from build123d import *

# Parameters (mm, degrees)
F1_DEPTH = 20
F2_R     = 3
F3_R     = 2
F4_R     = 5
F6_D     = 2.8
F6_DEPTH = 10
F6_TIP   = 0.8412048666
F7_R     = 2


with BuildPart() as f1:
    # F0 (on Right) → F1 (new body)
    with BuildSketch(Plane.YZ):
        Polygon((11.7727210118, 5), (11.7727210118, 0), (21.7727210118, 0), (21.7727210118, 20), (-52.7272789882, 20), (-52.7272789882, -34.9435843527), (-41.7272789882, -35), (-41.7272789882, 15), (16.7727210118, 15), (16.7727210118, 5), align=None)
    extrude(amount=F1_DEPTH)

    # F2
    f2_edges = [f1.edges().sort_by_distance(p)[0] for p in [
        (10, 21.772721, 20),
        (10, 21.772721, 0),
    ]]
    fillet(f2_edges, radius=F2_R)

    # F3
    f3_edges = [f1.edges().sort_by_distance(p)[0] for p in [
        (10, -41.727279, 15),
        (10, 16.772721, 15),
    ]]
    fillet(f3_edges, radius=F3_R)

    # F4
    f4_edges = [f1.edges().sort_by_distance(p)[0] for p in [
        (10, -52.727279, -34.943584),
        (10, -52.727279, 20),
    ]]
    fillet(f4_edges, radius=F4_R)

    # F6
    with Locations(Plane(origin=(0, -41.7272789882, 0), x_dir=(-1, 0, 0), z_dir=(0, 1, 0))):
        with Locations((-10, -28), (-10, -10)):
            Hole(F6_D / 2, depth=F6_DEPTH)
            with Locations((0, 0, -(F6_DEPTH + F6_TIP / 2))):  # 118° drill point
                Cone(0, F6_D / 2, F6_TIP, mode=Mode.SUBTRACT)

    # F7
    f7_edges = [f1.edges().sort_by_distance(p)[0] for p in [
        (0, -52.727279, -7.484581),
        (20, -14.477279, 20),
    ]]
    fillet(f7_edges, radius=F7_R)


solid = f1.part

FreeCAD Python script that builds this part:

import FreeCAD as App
import Part
import Sketcher
from FreeCAD import Vector


def edges_at(feature, points):
    """Names of the edges that pass closest to the given points."""
    edges = feature.Shape.Edges
    near = lambda p: min(range(len(edges)), key=lambda i: edges[i].distToShape(Part.Vertex(*p))[0])
    return sorted({f"Edge{near(p) + 1}" for p in points})

doc = App.newDocument("Part")
body = doc.addObject("PartDesign::Body", "Body")

# Sketch on YZ plane
sketch1 = body.newObject("Sketcher::SketchObject", "Sketch")
sketch1.AttachmentSupport = (doc.getObject("YZ_Plane"), [""])
sketch1.MapMode = "FlatFace"
sketch1.addGeometry(Part.LineSegment(Vector(12, 5, 0), Vector(12, 0, 0)), False)
sketch1.addGeometry(Part.LineSegment(Vector(12, 0, 0), Vector(22, 0, 0)), False)
sketch1.addGeometry(Part.LineSegment(Vector(22, 0, 0), Vector(22, 20, 0)), False)
sketch1.addGeometry(Part.LineSegment(Vector(22, 20, 0), Vector(-53, 20, 0)), False)
sketch1.addGeometry(Part.LineSegment(Vector(-53, 20, 0), Vector(-53, -35, 0)), False)
sketch1.addGeometry(Part.LineSegment(Vector(-53, -35, 0), Vector(-42, -35, 0)), False)
sketch1.addGeometry(Part.LineSegment(Vector(-42, -35, 0), Vector(-42, 15, 0)), False)
sketch1.addGeometry(Part.LineSegment(Vector(-42, 15, 0), Vector(17, 15, 0)), False)
sketch1.addGeometry(Part.LineSegment(Vector(17, 15, 0), Vector(17, 5, 0)), False)
sketch1.addGeometry(Part.LineSegment(Vector(17, 5, 0), Vector(12, 5, 0)), False)
sketch1.addConstraint(Sketcher.Constraint("Coincident", 0, 2, 1, 1))
sketch1.addConstraint(Sketcher.Constraint("Coincident", 1, 2, 2, 1))
sketch1.addConstraint(Sketcher.Constraint("Coincident", 2, 2, 3, 1))
sketch1.addConstraint(Sketcher.Constraint("Coincident", 3, 2, 4, 1))
sketch1.addConstraint(Sketcher.Constraint("Coincident", 4, 2, 5, 1))
sketch1.addConstraint(Sketcher.Constraint("Coincident", 5, 2, 6, 1))
sketch1.addConstraint(Sketcher.Constraint("Coincident", 6, 2, 7, 1))
sketch1.addConstraint(Sketcher.Constraint("Coincident", 7, 2, 8, 1))
sketch1.addConstraint(Sketcher.Constraint("Coincident", 8, 2, 9, 1))
sketch1.addConstraint(Sketcher.Constraint("Coincident", 9, 2, 0, 1))
sketch1.addConstraint(Sketcher.Constraint("Vertical", 0))
sketch1.addConstraint(Sketcher.Constraint("Horizontal", 1))
sketch1.addConstraint(Sketcher.Constraint("Vertical", 2))
sketch1.addConstraint(Sketcher.Constraint("Horizontal", 3))
sketch1.addConstraint(Sketcher.Constraint("Vertical", 4))
sketch1.addConstraint(Sketcher.Constraint("Vertical", 6))
sketch1.addConstraint(Sketcher.Constraint("Horizontal", 7))
sketch1.addConstraint(Sketcher.Constraint("Vertical", 8))
sketch1.addConstraint(Sketcher.Constraint("Horizontal", 9))
sketch1.addConstraint(Sketcher.Constraint("PointOnObject", 0, 2, -1))
sketch1.addConstraint(Sketcher.Constraint("Equal", 9, 0))
sketch1.addConstraint(Sketcher.Constraint("Equal", 1, 8))
sketch1.addConstraint(Sketcher.Constraint("DistanceX", 1, 1, 1, 2, 10.0))
sketch1.addConstraint(Sketcher.Constraint("DistanceX", 9, 2, 9, 1, 5.0))
sketch1.addConstraint(Sketcher.Constraint("DistanceY", 2, 1, 2, 2, 20.0))
sketch1.addConstraint(Sketcher.Constraint("DistanceY", 6, 1, 6, 2, 50.0))
sketch1.addConstraint(Sketcher.Constraint("DistanceX", 3, 2, 3, 1, 74.5))
sketch1.addConstraint(Sketcher.Constraint("DistanceX", 7, 1, 7, 2, 58.5))
sketch1.addConstraint(Sketcher.Constraint("DistanceY", 4, 2, 4, 1, 54.943584))
sketch1.addConstraint(Sketcher.Constraint("DistanceX", -1, 1, 0, 2, 11.772721))
pad1 = body.newObject("PartDesign::Pad", "Pad")
pad1.Profile = sketch1
pad1.Length = 20
doc.recompute()

fillet = body.newObject("PartDesign::Fillet", "Fillet")
fillet.Base = (pad1, edges_at(pad1, [(10, 21.773, 20), (10, 21.773, 0)]))
fillet.Radius = 3
doc.recompute()

fillet2 = body.newObject("PartDesign::Fillet", "Fillet001")
fillet2.Base = (fillet, edges_at(fillet, [(10, -41.727, 15), (10, 16.773, 15)]))
fillet2.Radius = 2
doc.recompute()

fillet3 = body.newObject("PartDesign::Fillet", "Fillet002")
fillet3.Base = (fillet2, edges_at(fillet2, [(10, -52.727, -34.944), (10, -52.727, 20)]))
fillet3.Radius = 5

# Sketch on XZ plane
sketch2 = body.newObject("Sketcher::SketchObject", "Sketch001")
sketch2.AttachmentSupport = (doc.getObject("XZ_Plane"), [""])
sketch2.MapMode = "FlatFace"
sketch2.AttachmentOffset = App.Placement(Vector(0, 0, 41.727279), App.Rotation())
sketch2.addGeometry(Part.Circle(Vector(10, -28, 0), Vector(0, 0, 1), 1.4), False)
sketch2.addGeometry(Part.Circle(Vector(10, -10, 0), Vector(0, 0, 1), 1.4), False)
sketch2.addConstraint(Sketcher.Constraint("Equal", 0, 1))
sketch2.addConstraint(Sketcher.Constraint("Vertical", 0, 3, 1, 3))
sketch2.addConstraint(Sketcher.Constraint("Diameter", 0, 2.8))
sketch2.addConstraint(Sketcher.Constraint("DistanceX", -1, 1, 0, 3, 10.0))
sketch2.addConstraint(Sketcher.Constraint("DistanceY", 0, 3, -1, 1, 28.0))
sketch2.addConstraint(Sketcher.Constraint("DistanceY", 1, 3, -1, 1, 10.0))
doc.recompute()
hole = body.newObject("PartDesign::Hole", "Hole")
hole.Profile = sketch2
hole.ThreadType = "None"
hole.Diameter = 2.8
hole.DepthType = "Dimension"
hole.Depth = 10
hole.DrillPoint = "Angled"
hole.DrillPointAngle = 118
hole.Reversed = True
doc.recompute()

fillet4 = body.newObject("PartDesign::Fillet", "Fillet003")
fillet4.Base = (hole, edges_at(hole, [(0, -52.727, -7.485), (20, -14.477, 20)]))
fillet4.Radius = 2

doc.recompute()
